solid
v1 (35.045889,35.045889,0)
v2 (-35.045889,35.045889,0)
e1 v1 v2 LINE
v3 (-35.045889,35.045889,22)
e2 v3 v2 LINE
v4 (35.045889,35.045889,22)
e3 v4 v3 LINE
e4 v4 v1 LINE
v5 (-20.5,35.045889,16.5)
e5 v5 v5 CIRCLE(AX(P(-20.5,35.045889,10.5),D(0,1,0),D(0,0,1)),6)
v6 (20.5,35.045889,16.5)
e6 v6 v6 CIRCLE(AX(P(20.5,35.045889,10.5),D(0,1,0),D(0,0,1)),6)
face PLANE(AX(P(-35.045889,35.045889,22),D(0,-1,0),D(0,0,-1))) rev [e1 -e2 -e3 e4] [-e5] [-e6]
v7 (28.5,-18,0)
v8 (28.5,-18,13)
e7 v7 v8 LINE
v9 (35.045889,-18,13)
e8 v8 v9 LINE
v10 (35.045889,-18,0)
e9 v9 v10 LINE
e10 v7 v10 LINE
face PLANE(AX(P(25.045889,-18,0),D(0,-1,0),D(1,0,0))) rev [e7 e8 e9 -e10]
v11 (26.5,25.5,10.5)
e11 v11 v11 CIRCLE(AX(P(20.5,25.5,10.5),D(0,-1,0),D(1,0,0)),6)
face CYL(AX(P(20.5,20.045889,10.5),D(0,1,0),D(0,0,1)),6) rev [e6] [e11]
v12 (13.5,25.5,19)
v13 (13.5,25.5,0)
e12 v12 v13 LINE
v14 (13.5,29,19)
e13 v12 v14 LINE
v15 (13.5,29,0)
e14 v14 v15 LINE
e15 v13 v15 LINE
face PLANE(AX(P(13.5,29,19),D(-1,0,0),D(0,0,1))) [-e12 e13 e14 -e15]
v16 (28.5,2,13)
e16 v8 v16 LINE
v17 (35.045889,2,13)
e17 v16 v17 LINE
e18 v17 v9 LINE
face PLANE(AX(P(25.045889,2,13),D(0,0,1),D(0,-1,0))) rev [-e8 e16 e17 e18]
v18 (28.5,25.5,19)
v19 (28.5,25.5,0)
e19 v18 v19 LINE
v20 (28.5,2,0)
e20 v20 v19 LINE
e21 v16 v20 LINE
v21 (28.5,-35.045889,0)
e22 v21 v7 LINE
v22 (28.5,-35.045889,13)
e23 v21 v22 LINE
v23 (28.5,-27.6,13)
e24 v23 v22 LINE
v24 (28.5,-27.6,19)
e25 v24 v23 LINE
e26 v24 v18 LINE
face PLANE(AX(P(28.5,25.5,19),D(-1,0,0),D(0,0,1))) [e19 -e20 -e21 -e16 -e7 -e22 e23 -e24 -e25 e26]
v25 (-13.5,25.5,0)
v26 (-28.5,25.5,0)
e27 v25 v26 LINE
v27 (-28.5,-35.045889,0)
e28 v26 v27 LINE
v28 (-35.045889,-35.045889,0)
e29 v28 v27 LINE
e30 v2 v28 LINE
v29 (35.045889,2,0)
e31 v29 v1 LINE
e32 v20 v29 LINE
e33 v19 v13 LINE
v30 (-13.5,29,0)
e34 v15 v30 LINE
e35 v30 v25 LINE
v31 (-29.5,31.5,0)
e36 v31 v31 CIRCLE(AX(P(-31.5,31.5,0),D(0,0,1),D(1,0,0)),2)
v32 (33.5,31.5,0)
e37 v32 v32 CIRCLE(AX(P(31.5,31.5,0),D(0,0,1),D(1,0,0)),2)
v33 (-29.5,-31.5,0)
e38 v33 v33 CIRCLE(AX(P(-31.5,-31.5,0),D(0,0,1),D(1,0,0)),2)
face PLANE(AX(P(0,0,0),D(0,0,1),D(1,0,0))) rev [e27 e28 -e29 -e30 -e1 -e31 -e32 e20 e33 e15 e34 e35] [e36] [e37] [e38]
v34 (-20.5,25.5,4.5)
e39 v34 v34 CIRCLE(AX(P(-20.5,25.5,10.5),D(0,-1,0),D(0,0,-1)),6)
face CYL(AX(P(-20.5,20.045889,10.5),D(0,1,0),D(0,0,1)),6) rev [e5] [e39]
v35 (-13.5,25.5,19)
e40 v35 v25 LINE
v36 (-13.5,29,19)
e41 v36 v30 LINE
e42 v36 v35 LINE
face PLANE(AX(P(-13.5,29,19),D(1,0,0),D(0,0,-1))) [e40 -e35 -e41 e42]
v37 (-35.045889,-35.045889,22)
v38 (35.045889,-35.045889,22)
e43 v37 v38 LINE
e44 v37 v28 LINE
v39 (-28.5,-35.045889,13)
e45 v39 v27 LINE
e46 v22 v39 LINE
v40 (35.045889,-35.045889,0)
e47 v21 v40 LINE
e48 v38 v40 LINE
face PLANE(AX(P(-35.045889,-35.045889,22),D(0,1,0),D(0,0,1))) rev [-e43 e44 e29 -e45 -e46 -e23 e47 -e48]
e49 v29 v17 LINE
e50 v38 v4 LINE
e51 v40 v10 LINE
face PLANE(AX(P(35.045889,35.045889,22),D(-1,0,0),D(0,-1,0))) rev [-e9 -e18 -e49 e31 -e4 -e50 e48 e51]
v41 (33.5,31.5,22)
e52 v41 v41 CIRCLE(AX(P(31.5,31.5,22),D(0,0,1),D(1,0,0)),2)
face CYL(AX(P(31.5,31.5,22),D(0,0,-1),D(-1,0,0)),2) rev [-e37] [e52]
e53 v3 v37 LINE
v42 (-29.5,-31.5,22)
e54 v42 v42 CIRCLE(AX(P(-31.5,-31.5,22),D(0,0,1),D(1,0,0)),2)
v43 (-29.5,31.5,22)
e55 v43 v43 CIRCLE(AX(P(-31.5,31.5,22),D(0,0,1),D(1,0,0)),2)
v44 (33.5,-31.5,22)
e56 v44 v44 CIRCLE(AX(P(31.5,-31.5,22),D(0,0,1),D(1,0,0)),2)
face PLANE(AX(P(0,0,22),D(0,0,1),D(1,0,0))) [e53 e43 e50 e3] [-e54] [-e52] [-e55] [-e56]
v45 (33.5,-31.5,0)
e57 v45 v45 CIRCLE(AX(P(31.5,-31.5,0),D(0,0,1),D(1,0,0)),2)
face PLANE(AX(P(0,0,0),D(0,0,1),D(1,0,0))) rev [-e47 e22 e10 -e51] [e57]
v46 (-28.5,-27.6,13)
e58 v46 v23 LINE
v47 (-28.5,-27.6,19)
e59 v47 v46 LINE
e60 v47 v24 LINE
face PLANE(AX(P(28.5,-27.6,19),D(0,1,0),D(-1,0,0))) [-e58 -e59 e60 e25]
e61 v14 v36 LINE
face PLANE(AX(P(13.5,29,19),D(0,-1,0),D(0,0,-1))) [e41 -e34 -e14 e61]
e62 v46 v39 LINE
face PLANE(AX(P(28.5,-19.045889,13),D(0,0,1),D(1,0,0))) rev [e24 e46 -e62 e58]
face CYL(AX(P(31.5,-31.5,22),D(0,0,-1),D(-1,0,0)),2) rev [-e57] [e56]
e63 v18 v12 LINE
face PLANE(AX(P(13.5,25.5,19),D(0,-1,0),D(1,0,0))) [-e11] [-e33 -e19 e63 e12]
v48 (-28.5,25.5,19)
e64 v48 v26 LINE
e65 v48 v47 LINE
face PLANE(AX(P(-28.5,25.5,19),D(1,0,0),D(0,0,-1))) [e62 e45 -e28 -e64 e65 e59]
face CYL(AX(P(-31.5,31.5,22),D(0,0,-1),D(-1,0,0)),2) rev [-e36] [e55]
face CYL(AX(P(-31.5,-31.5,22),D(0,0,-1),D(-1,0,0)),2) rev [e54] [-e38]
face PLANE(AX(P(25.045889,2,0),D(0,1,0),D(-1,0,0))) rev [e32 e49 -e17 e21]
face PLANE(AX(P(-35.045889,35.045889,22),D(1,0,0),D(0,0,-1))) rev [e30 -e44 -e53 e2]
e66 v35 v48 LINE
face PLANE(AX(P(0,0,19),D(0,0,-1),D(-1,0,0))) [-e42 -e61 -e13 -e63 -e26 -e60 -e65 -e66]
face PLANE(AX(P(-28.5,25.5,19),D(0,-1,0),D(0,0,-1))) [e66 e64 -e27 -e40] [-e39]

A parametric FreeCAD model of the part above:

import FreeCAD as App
import Part
import Sketcher

doc = App.newDocument("Part")
params = doc.addObject("Spreadsheet::Sheet", "Params")
for row, (alias, value) in enumerate([
    ("sketch1_diameter", "4 mm"),
    ("pad1_length", "22 mm"),
    ("sketch2_width", "15 mm"),
    ("sketch2_width2", "57 mm"),
    ("sketch2_height", "53.1 mm"),
    ("sketch2_height2", "3.5 mm"),
    ("pocket1_length", "19 mm"),
    ("sketch3_diameter", "12 mm"),
    ("pocket2_length", "15 mm"),
    ("sketch4_diameter", "12 mm"),
    ("pocket3_length", "15 mm"),
    ("sketch5_width", "20 mm"),
    ("sketch5_height", "13 mm"),
    ("pocket4_length", "10 mm"),
    ("sketch6_width", "57 mm"),
    ("sketch6_height", "13 mm"),
    ("pocket5_length", "16 mm"),
], start=1):
    params.set(f"A{row}", alias)
    params.set(f"B{row}", "=" + value)
    params.setAlias(f"B{row}", alias)

body = doc.addObject("PartDesign::Body", "Body")

sketch1 = body.newObject("Sketcher::SketchObject", "Sketch")
sketch1.AttachmentSupport = (doc.getObject("XY_Plane"), [""])
sketch1.MapMode = "FlatFace"
sketch1.addGeometry([
    Part.LineSegment(App.Vector(-35, 35, 0), App.Vector(-35, -35, 0)),
    Part.LineSegment(App.Vector(-35, -35, 0), App.Vector(35, -35, 0)),
    Part.LineSegment(App.Vector(35, -35, 0), App.Vector(35, 35, 0)),
    Part.LineSegment(App.Vector(35, 35, 0), App.Vector(-35, 35, 0)),
    Part.Circle(App.Vector(-31.5, -31.5, 0), App.Vector(0, 0, 1), 2),
    Part.Circle(App.Vector(31.5, -31.5, 0), App.Vector(0, 0, 1), 2),
    Part.Circle(App.Vector(-31.5, 31.5, 0), App.Vector(0, 0, 1), 2),
    Part.Circle(App.Vector(31.5, 31.5, 0), App.Vector(0, 0, 1), 2),
], False)
sketch1.addConstraint([
    Sketcher.Constraint("Coincident", 0, 2, 1, 1),
    Sketcher.Constraint("Coincident", 1, 2, 2, 1),
    Sketcher.Constraint("Coincident", 2, 2, 3, 1),
    Sketcher.Constraint("Coincident", 3, 2, 0, 1),
    Sketcher.Constraint("Vertical", 0),
    Sketcher.Constraint("Horizontal", 1),
    Sketcher.Constraint("Vertical", 2),
    Sketcher.Constraint("Horizontal", 3),
    Sketcher.Constraint("Equal", 4, 5),
    Sketcher.Constraint("Equal", 5, 6),
    Sketcher.Constraint("Equal", 6, 7),
    Sketcher.Constraint("Symmetric", 5, 3, 6, 3, -1, 1),
    Sketcher.Constraint("Symmetric", 4, 3, 7, 3, -1, 1),
    Sketcher.Constraint("Symmetric", 0, 2, 2, 2, -1, 1),
    Sketcher.Constraint("Symmetric", 4, 3, 5, 3, -2),
    Sketcher.Constraint("Equal", 3, 0),
    Sketcher.Constraint("Diameter", 4, 4.0),
    Sketcher.Constraint("DistanceX", 4, 3, 5, 3, 63.0),
    Sketcher.Constraint("DistanceY", 4, 3, 6, 3, 63.0),
    Sketcher.Constraint("DistanceX", 1, 1, 1, 2, 70.091779),
])
sketch1.setExpression("Constraints[16]", "Params.sketch1_diameter")
pad1 = body.newObject("PartDesign::Pad", "Pad")
pad1.Profile = sketch1
pad1.setExpression("Length", "Params.pad1_length")

sketch2 = body.newObject("Sketcher::SketchObject", "Sketch001")
sketch2.AttachmentSupport = (doc.getObject("XY_Plane"), [""])
sketch2.MapMode = "FlatFace"
sketch2.addGeometry([
    Part.LineSegment(App.Vector(-13.5, 25.5, 0), App.Vector(-28.5, 25.5, 0)),
    Part.LineSegment(App.Vector(-28.5, 25.5, 0), App.Vector(-28.5, -27.6, 0)),
    Part.LineSegment(App.Vector(-28.5, -27.6, 0), App.Vector(28.5, -27.6, 0)),
    Part.LineSegment(App.Vector(28.5, -27.6, 0), App.Vector(28.5, 25.5, 0)),
    Part.LineSegment(App.Vector(28.5, 25.5, 0), App.Vector(13.5, 25.5, 0)),
    Part.LineSegment(App.Vector(13.5, 25.5, 0), App.Vector(13.5, 29, 0)),
    Part.LineSegment(App.Vector(13.5, 29, 0), App.Vector(-13.5, 29, 0)),
    Part.LineSegment(App.Vector(-13.5, 29, 0), App.Vector(-13.5, 25.5, 0)),
], False)
sketch2.addConstraint([
    Sketcher.Constraint("Coincident", 0, 2, 1, 1),
    Sketcher.Constraint("Coincident", 1, 2, 2, 1),
    Sketcher.Constraint("Coincident", 2, 2, 3, 1),
    Sketcher.Constraint("Coincident", 3, 2, 4, 1),
    Sketcher.Constraint("Coincident", 4, 2, 5, 1),
    Sketcher.Constraint("Coincident", 5, 2, 6, 1),
    Sketcher.Constraint("Coincident", 6, 2, 7, 1),
    Sketcher.Constraint("Coincident", 7, 2, 0, 1),
    Sketcher.Constraint("Horizontal", 0),
    Sketcher.Constraint("Vertical", 1),
    Sketcher.Constraint("Horizontal", 2),
    Sketcher.Constraint("Vertical", 3),
    Sketcher.Constraint("Horizontal", 4),
    Sketcher.Constraint("Vertical", 5),
    Sketcher.Constraint("Horizontal", 6),
    Sketcher.Constraint("Vertical", 7),
    Sketcher.Constraint("Symmetric", 0, 2, 3, 2, -2),
    Sketcher.Constraint("Equal", 0, 4),
    Sketcher.Constraint("DistanceX", 0, 2, 0, 1, 15.0),
    Sketcher.Constraint("DistanceX", 2, 1, 2, 2, 57.0),
    Sketcher.Constraint("DistanceY", 1, 2, 1, 1, 53.1),
    Sketcher.Constraint("DistanceY", 5, 1, 5, 2, 3.5),
    Sketcher.Constraint("DistanceY", -1, 1, 5, 2, 29.0),
])
sketch2.setExpression("Constraints[18]", "Params.sketch2_width")
sketch2.setExpression("Constraints[19]", "Params.sketch2_width2")
sketch2.setExpression("Constraints[20]", "Params.sketch2_height")
sketch2.setExpression("Constraints[21]", "Params.sketch2_height2")
pocket1 = body.newObject("PartDesign::Pocket", "Pocket")
pocket1.Profile = sketch2
pocket1.setExpression("Length", "Params.pocket1_length")
pocket1.Reversed = True

sketch3 = body.newObject("Sketcher::SketchObject", "Sketch002")
sketch3.AttachmentSupport = (doc.getObject("XZ_Plane"), [""])
sketch3.MapMode = "FlatFace"
sketch3.AttachmentOffset = App.Placement(App.Vector(0, 0, -35.045889), App.Rotation())
sketch3.addGeometry(Part.Circle(App.Vector(20, 10, 0), App.Vector(0, 0, 1), 6), False)
sketch3.addConstraint([
    Sketcher.Constraint("Diameter", 0, 12.0),
    Sketcher.Constraint("DistanceX", -1, 1, 0, 3, 20.5),
    Sketcher.Constraint("DistanceY", -1, 1, 0, 3, 10.5),
])
sketch3.setExpression("Constraints[0]", "Params.sketch3_diameter")
pocket2 = body.newObject("PartDesign::Pocket", "Pocket001")
pocket2.Profile = sketch3
pocket2.setExpression("Length", "Params.pocket2_length")
pocket2.Reversed = True

sketch4 = body.newObject("Sketcher::SketchObject", "Sketch003")
sketch4.AttachmentSupport = (doc.getObject("XZ_Plane"), [""])
sketch4.MapMode = "FlatFace"
sketch4.AttachmentOffset = App.Placement(App.Vector(0, 0, -35.045889), App.Rotation())
sketch4.addGeometry([
    Part.Circle(App.Vector(20, 10, 0), App.Vector(0, 0, 1), 6),
    Part.Circle(App.Vector(-20, 10, 0), App.Vector(0, 0, 1), 6),
], False)
sketch4.addConstraint([
    Sketcher.Constraint("Equal", 0, 1),
    Sketcher.Constraint("Symmetric", 0, 3, 1, 3, -2),
    Sketcher.Constraint("Diameter", 0, 12.0),
    Sketcher.Constraint("DistanceX", 1, 3, 0, 3, 41.0),
    Sketcher.Constraint("DistanceY", -1, 1, 0, 3, 10.5),
])
sketch4.setExpression("Constraints[2]", "Params.sketch4_diameter")
pocket3 = body.newObject("PartDesign::Pocket", "Pocket002")
pocket3.Profile = sketch4
pocket3.setExpression("Length", "Params.pocket3_length")
pocket3.Reversed = True

sketch5 = body.newObject("Sketcher::SketchObject", "Sketch004")
sketch5.AttachmentSupport = (doc.getObject("YZ_Plane"), [""])
sketch5.MapMode = "FlatFace"
sketch5.AttachmentOffset = App.Placement(App.Vector(0, 0, 35.045889), App.Rotation())
sketch5.addGeometry([
    Part.LineSegment(App.Vector(2, 13, 0), App.Vector(-18, 13, 0)),
    Part.LineSegment(App.Vector(-18, 13, 0), App.Vector(-18, 0, 0)),
    Part.LineSegment(App.Vector(-18, 0, 0), App.Vector(2, 0, 0)),
    Part.LineSegment(App.Vector(2, 0, 0), App.Vector(2, 13, 0)),
], False)
sketch5.addConstraint([
    Sketcher.Constraint("Coincident", 0, 2, 1, 1),
    Sketcher.Constraint("Coincident", 1, 2, 2, 1),
    Sketcher.Constraint("Coincident", 2, 2, 3, 1),
    Sketcher.Constraint("Coincident", 3, 2, 0, 1),
    Sketcher.Constraint("Horizontal", 0),
    Sketcher.Constraint("Vertical", 1),
    Sketcher.Constraint("Horizontal", 2),
    Sketcher.Constraint("Vertical", 3),
    Sketcher.Constraint("PointOnObject", 1, 2, -1),
    Sketcher.Constraint("DistanceX", 0, 2, 0, 1, 20.0),
    Sketcher.Constraint("DistanceY", 1, 2, 1, 1, 13.0),
    Sketcher.Constraint("DistanceX", 0, 2, -1, 1, 18.0),
])
sketch5.setExpression("Constraints[9]", "Params.sketch5_width")
sketch5.setExpression("Constraints[10]", "Params.sketch5_height")
pocket4 = body.newObject("PartDesign::Pocket", "Pocket003")
pocket4.Profile = sketch5
pocket4.setExpression("Length", "Params.pocket4_length")

sketch6 = body.newObject("Sketcher::SketchObject", "Sketch005")
sketch6.AttachmentSupport = (doc.getObject("XZ_Plane"), [""])
sketch6.MapMode = "FlatFace"
sketch6.AttachmentOffset = App.Placement(App.Vector(0, 0, 35.045889), App.Rotation())
sketch6.addGeometry([
    Part.LineSegment(App.Vector(28, 0, 0), App.Vector(28, 13, 0)),
    Part.LineSegment(App.Vector(28, 13, 0), App.Vector(-28, 13, 0)),
    Part.LineSegment(App.Vector(-28, 13, 0), App.Vector(-28, 0, 0)),
    Part.LineSegment(App.Vector(-28, 0, 0), App.Vector(28, 0, 0)),
], False)
sketch6.addConstraint([
    Sketcher.Constraint("Coincident", 0, 2, 1, 1),
    Sketcher.Constraint("Coincident", 1, 2, 2, 1),
    Sketcher.Constraint("Coincident", 2, 2, 3, 1),
    Sketcher.Constraint("Coincident", 3, 2, 0, 1),
    Sketcher.Constraint("Vertical", 0),
    Sketcher.Constraint("Horizontal", 1),
    Sketcher.Constraint("Vertical", 2),
    Sketcher.Constraint("Horizontal", 3),
    Sketcher.Constraint("Symmetric", 2, 2, 3, 2, -1, 1),
    Sketcher.Constraint("DistanceX", 1, 2, 1, 1, 57.0),
    Sketcher.Constraint("DistanceY", 0, 1, 0, 2, 13.0),
])
sketch6.setExpression("Constraints[9]", "Params.sketch6_width")
sketch6.setExpression("Constraints[10]", "Params.sketch6_height")
pocket5 = body.newObject("PartDesign::Pocket", "Pocket004")
pocket5.Profile = sketch6
pocket5.setExpression("Length", "Params.pocket5_length")

doc.recompute()
